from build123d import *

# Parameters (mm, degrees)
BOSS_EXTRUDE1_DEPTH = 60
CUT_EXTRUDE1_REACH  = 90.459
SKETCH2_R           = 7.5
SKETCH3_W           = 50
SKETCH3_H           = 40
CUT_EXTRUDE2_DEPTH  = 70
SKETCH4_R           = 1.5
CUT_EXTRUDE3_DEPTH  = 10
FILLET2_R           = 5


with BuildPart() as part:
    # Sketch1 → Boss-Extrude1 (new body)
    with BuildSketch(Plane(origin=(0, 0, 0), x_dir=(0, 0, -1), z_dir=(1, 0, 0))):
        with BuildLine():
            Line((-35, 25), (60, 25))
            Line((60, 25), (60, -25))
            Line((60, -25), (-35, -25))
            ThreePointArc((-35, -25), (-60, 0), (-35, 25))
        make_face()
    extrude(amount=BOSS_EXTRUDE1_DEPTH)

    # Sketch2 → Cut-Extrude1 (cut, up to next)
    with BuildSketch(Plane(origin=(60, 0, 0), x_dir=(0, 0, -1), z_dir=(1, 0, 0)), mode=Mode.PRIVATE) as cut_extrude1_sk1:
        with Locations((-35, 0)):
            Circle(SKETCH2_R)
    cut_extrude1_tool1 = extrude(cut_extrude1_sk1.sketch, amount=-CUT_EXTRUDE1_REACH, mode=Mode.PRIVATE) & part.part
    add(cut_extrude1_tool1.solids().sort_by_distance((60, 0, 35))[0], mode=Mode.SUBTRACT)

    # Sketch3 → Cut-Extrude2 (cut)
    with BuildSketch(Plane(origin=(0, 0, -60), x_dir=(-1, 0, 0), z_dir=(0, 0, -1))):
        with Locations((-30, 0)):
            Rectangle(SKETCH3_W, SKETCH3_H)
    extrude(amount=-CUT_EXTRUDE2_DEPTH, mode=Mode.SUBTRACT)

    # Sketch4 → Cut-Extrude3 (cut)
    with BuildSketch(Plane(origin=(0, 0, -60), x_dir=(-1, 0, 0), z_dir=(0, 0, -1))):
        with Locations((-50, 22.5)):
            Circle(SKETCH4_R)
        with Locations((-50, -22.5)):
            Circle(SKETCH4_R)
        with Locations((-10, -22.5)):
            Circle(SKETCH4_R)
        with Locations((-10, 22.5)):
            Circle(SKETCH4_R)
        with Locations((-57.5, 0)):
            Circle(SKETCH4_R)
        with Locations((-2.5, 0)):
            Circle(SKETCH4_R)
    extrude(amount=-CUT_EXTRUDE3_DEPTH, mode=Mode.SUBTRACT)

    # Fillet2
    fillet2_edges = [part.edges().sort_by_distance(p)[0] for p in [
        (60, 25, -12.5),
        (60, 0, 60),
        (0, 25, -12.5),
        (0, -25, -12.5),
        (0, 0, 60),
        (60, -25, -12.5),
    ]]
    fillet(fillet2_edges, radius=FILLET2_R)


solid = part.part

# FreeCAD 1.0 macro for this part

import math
import FreeCAD as App
import Part
import Sketcher


def edges_at(feature, points):
    """Names of the edges that pass closest to the given points."""
    edges = feature.Shape.Edges
    near = lambda p: min(range(len(edges)), key=lambda i: edges[i].distToShape(Part.Vertex(*p))[0])
    return sorted({f"Edge{near(p) + 1}" for p in points})

doc = App.newDocument("Part")
body = doc.addObject("PartDesign::Body", "Body")

sketch1 = doc.addObject("Sketcher::SketchObject", "Sketch")
body.addObject(sketch1)
sketch1.AttachmentSupport = (doc.YZ_Plane, [""])
sketch1.MapMode = "FlatFace"
sketch1.addGeometry([
    Part.LineSegment(App.Vector(25, -60, 0), App.Vector(25, 35, 0)),
    Part.ArcOfCircle(Part.Circle(App.Vector(0, 35, 0), App.Vector(0, 0, 1), 25), math.radians(0), math.radians(180)),
    Part.LineSegment(App.Vector(-25, 35, 0), App.Vector(-25, -60, 0)),
    Part.LineSegment(App.Vector(-25, -60, 0), App.Vector(25, -60, 0)),
], False)
sketch1.addConstraint([
    Sketcher.Constraint("Tangent", 0, 2, 1, 1),
    Sketcher.Constraint("Tangent", 1, 2, 2, 1),
    Sketcher.Constraint("Coincident", 2, 2, 3, 1),
    Sketcher.Constraint("Coincident", 3, 2, 0, 1),
    Sketcher.Constraint("Vertical", 0),
    Sketcher.Constraint("Vertical", 2),
    Sketcher.Constraint("Horizontal", 3),
    Sketcher.Constraint("PointOnObject", 1, 3, -2),
    Sketcher.Constraint("Radius", 1, 25.0),
    Sketcher.Constraint("DistanceY", 0, 1, 0, 2, 95.0),
    Sketcher.Constraint("DistanceY", -1, 1, 1, 3, 35.0),
])
pad1 = doc.addObject("PartDesign::Pad", "Pad")
body.addObject(pad1)
pad1.Profile = sketch1
pad1.Length = 60

sketch2 = doc.addObject("Sketcher::SketchObject", "Sketch001")
body.addObject(sketch2)
sketch2.AttachmentSupport = (doc.YZ_Plane, [""])
sketch2.MapMode = "FlatFace"
sketch2.AttachmentOffset = App.Placement(App.Vector(0, 0, 60), App.Rotation())
sketch2.addGeometry(Part.Circle(App.Vector(0, 35, 0), App.Vector(0, 0, 1), 8), False)
sketch2.addConstraint([
    Sketcher.Constraint("PointOnObject", 0, 3, -2),
    Sketcher.Constraint("Diameter", 0, 15.0),
    Sketcher.Constraint("DistanceY", -1, 1, 0, 3, 35.0),
])
pocket1 = doc.addObject("PartDesign::Pocket", "Pocket")
body.addObject(pocket1)
pocket1.Profile = sketch2
pocket1.Type = "UpToFirst"

sketch3 = doc.addObject("Sketcher::SketchObject", "Sketch002")
body.addObject(sketch3)
sketch3.AttachmentSupport = (doc.XY_Plane, [""])
sketch3.MapMode = "FlatFace"
sketch3.AttachmentOffset = App.Placement(App.Vector(0, 0, -60), App.Rotation())
sketch3.addGeometry([
    Part.LineSegment(App.Vector(55, 20, 0), App.Vector(55, -20, 0)),
    Part.LineSegment(App.Vector(55, -20, 0), App.Vector(5, -20, 0)),
    Part.LineSegment(App.Vector(5, -20, 0), App.Vector(5, 20, 0)),
    Part.LineSegment(App.Vector(5, 20, 0), App.Vector(55, 20, 0)),
], False)
sketch3.addConstraint([
    Sketcher.Constraint("Coincident", 0, 2, 1, 1),
    Sketcher.Constraint("Coincident", 1, 2, 2, 1),
    Sketcher.Constraint("Coincident", 2, 2, 3, 1),
    Sketcher.Constraint("Coincident", 3, 2, 0, 1),
    Sketcher.Constraint("Vertical", 0),
    Sketcher.Constraint("Horizontal", 1),
    Sketcher.Constraint("Vertical", 2),
    Sketcher.Constraint("Horizontal", 3),
    Sketcher.Constraint("DistanceX", 1, 2, 1, 1, 50.0),
    Sketcher.Constraint("DistanceY", 0, 2, 0, 1, 40.0),
    Sketcher.Constraint("DistanceX", -1, 1, 0, 2, 55.0),
    Sketcher.Constraint("DistanceY", 0, 2, -1, 1, 20.0),
])
pocket2 = doc.addObject("PartDesign::Pocket", "Pocket001")
body.addObject(pocket2)
pocket2.Profile = sketch3
pocket2.Length = 70
pocket2.Reversed = True

sketch4 = doc.addObject("Sketcher::SketchObject", "Sketch003")
body.addObject(sketch4)
sketch4.AttachmentSupport = (doc.XY_Plane, [""])
sketch4.MapMode = "FlatFace"
sketch4.AttachmentOffset = App.Placement(App.Vector(0, 0, -60), App.Rotation())
sketch4.addGeometry([
    Part.Circle(App.Vector(50, 22.5, 0), App.Vector(0, 0, 1), 1.5),
    Part.Circle(App.Vector(50, -22.5, 0), App.Vector(0, 0, 1), 1.5),
    Part.Circle(App.Vector(10, -22.5, 0), App.Vector(0, 0, 1), 1.5),
    Part.Circle(App.Vector(10, 22.5, 0), App.Vector(0, 0, 1), 1.5),
    Part.Circle(App.Vector(57.5, 0, 0), App.Vector(0, 0, 1), 1.5),
    Part.Circle(App.Vector(2.5, 0, 0), App.Vector(0, 0, 1), 1.5),
], False)
sketch4.addConstraint([
    Sketcher.Constraint("Equal", 0, 1),
    Sketcher.Constraint("Equal", 1, 2),
    Sketcher.Constraint("Equal", 2, 3),
    Sketcher.Constraint("Equal", 3, 4),
    Sketcher.Constraint("Equal", 4, 5),
    Sketcher.Constraint("Symmetric", 0, 3, 1, 3, -1),
    Sketcher.Constraint("Symmetric", 2, 3, 3, 3, -1),
    Sketcher.Constraint("PointOnObject", 4, 3, -1),
    Sketcher.Constraint("PointOnObject", 5, 3, -1),
    Sketcher.Constraint("Horizontal", 1, 3, 2, 3),
    Sketcher.Constraint("Diameter", 0, 3.0),
    Sketcher.Constraint("DistanceX", -1, 1, 0, 3, 50.0),
    Sketcher.Constraint("DistanceX", -1, 1, 2, 3, 10.0),
    Sketcher.Constraint("DistanceY", 1, 3, 0, 3, 45.0),
    Sketcher.Constraint("DistanceX", 5, 3, 4, 3, 55.0),
    Sketcher.Constraint("DistanceX", -1, 1, 4, 3, 57.5),
])
pocket3 = doc.addObject("PartDesign::Pocket", "Pocket002")
body.addObject(pocket3)
pocket3.Profile = sketch4
pocket3.Length = 10
pocket3.Reversed = True
doc.recompute()

fillet = doc.addObject("PartDesign::Fillet", "Fillet")
body.addObject(fillet)
fillet.Base = (pocket3, edges_at(pocket3, [
    (60, 25, -12.5),
    (60, 0, 60),
    (0, 25, -12.5),
    (0, -25, -12.5),
    (0, 0, 60),
    (60, -25, -12.5),
]))
fillet.Radius = 5

doc.recompute()
